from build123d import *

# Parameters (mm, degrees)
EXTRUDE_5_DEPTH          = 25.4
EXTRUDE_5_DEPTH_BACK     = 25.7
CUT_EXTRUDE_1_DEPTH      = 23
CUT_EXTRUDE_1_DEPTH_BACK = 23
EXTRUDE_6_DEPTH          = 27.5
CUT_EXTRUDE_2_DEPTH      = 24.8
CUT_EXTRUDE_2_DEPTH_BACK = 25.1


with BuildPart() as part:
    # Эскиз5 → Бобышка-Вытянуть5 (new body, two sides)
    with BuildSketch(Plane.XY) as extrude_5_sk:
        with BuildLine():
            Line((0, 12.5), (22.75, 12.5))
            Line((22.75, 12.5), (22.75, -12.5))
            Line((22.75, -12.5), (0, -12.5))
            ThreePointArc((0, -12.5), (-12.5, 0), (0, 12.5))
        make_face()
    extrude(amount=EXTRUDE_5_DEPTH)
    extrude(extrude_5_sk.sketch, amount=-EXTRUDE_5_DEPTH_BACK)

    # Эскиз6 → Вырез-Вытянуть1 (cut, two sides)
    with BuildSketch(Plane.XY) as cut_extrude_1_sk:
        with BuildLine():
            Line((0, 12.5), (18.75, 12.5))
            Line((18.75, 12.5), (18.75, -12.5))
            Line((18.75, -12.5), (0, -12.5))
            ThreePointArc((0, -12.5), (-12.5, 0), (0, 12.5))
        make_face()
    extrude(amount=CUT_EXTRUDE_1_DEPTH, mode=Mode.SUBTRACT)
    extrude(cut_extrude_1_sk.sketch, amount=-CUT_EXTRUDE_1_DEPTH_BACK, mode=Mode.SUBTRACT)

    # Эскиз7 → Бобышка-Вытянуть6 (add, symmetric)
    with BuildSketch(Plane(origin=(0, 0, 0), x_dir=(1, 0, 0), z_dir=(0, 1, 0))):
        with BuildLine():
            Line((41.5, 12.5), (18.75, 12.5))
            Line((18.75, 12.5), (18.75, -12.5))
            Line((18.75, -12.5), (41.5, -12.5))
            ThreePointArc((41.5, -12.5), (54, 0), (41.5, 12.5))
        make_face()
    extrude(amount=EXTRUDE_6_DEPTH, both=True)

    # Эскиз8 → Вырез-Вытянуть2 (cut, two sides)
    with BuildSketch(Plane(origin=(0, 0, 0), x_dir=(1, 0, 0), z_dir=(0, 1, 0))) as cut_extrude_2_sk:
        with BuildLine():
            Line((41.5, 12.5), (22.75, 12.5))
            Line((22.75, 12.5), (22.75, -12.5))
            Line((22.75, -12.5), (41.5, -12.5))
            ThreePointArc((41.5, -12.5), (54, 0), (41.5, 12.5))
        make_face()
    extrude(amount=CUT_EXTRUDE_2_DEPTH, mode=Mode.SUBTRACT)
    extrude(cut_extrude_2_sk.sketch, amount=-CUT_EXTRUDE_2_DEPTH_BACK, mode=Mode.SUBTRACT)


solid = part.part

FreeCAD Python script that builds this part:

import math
import FreeCAD as App
import Part
import Sketcher
from FreeCAD import Vector

doc = App.newDocument("Part")
body = doc.addObject("PartDesign::Body", "Body")

sketch1 = doc.addObject("Sketcher::SketchObject", "Sketch")
body.addObject(sketch1)
sketch1.AttachmentSupport = (doc.XY_Plane, [""])
sketch1.MapMode = "FlatFace"
sketch1.addGeometry([
    Part.LineSegment(Vector(22.75, 12.5, 0), Vector(0, 12.5, 0)),
    Part.ArcOfCircle(Part.Circle(Vector(0, 0, 0), Vector(0, 0, 1), 12.5), math.radians(90), math.radians(270)),
    Part.LineSegment(Vector(0, -12.5, 0), Vector(22.75, -12.5, 0)),
    Part.LineSegment(Vector(22.75, -12.5, 0), Vector(22.75, 12.5, 0)),
], False)
sketch1.addConstraint([
    Sketcher.Constraint("Tangent", 0, 2, 1, 1),
    Sketcher.Constraint("Tangent", 1, 2, 2, 1),
    Sketcher.Constraint("Coincident", 2, 2, 3, 1),
    Sketcher.Constraint("Coincident", 3, 2, 0, 1),
    Sketcher.Constraint("Horizontal", 0),
    Sketcher.Constraint("Horizontal", 2),
    Sketcher.Constraint("Vertical", 3),
    Sketcher.Constraint("Coincident", 1, 3, -1, 1),
    Sketcher.Constraint("Radius", 1, 12.5),
    Sketcher.Constraint("DistanceX", 0, 2, 0, 1, 22.75),
])
pad1 = doc.addObject("PartDesign::Pad", "Pad")
body.addObject(pad1)
pad1.Profile = sketch1
pad1.Type = "TwoLengths"
pad1.Length = 25.4
pad1.Length2 = 25.7

sketch2 = doc.addObject("Sketcher::SketchObject", "Sketch001")
body.addObject(sketch2)
sketch2.AttachmentSupport = (doc.XY_Plane, [""])
sketch2.MapMode = "FlatFace"
sketch2.addGeometry([
    Part.LineSegment(Vector(18.75, 12.5, 0), Vector(0, 12.5, 0)),
    Part.ArcOfCircle(Part.Circle(Vector(0, 0, 0), Vector(0, 0, 1), 12.5), math.radians(90), math.radians(270)),
    Part.LineSegment(Vector(0, -12.5, 0), Vector(18.75, -12.5, 0)),
    Part.LineSegment(Vector(18.75, -12.5, 0), Vector(18.75, 12.5, 0)),
], False)
sketch2.addConstraint([
    Sketcher.Constraint("Tangent", 0, 2, 1, 1),
    Sketcher.Constraint("Tangent", 1, 2, 2, 1),
    Sketcher.Constraint("Coincident", 2, 2, 3, 1),
    Sketcher.Constraint("Coincident", 3, 2, 0, 1),
    Sketcher.Constraint("Horizontal", 0),
    Sketcher.Constraint("Horizontal", 2),
    Sketcher.Constraint("Vertical", 3),
    Sketcher.Constraint("Coincident", 1, 3, -1, 1),
    Sketcher.Constraint("Radius", 1, 12.5),
    Sketcher.Constraint("DistanceX", 0, 2, 0, 1, 18.75),
])
pocket1 = doc.addObject("PartDesign::Pocket", "Pocket")
body.addObject(pocket1)
pocket1.Profile = sketch2
pocket1.Type = "TwoLengths"
pocket1.Length = 23
pocket1.Length2 = 23
pocket1.Reversed = True

sketch3 = doc.addObject("Sketcher::SketchObject", "Sketch002")
body.addObject(sketch3)
sketch3.AttachmentSupport = (doc.XZ_Plane, [""])
sketch3.MapMode = "FlatFace"
sketch3.addGeometry([
    Part.LineSegment(Vector(41.5, -12.5, 0), Vector(18.75, -12.5, 0)),
    Part.LineSegment(Vector(18.75, -12.5, 0), Vector(18.75, 12.5, 0)),
    Part.LineSegment(Vector(18.75, 12.5, 0), Vector(41.5, 12.5, 0)),
    Part.ArcOfCircle(Part.Circle(Vector(41.5, 0, 0), Vector(0, 0, 1), 12.5), math.radians(-90), math.radians(90)),
], False)
sketch3.addConstraint([
    Sketcher.Constraint("Coincident", 0, 2, 1, 1),
    Sketcher.Constraint("Coincident", 1, 2, 2, 1),
    Sketcher.Constraint("Tangent", 2, 2, 3, 2),
    Sketcher.Constraint("Tangent", 3, 1, 0, 1),
    Sketcher.Constraint("Horizontal", 0),
    Sketcher.Constraint("Vertical", 1),
    Sketcher.Constraint("Horizontal", 2),
    Sketcher.Constraint("PointOnObject", 3, 3, -1),
    Sketcher.Constraint("Radius", 3, 12.5),
    Sketcher.Constraint("DistanceX", 0, 2, 0, 1, 22.75),
    Sketcher.Constraint("DistanceX", -1, 1, 3, 3, 41.5),
])
pad2 = doc.addObject("PartDesign::Pad", "Pad001")
body.addObject(pad2)
pad2.Profile = sketch3
pad2.Length = 55
pad2.Midplane = True

sketch4 = doc.addObject("Sketcher::SketchObject", "Sketch003")
body.addObject(sketch4)
sketch4.AttachmentSupport = (doc.XZ_Plane, [""])
sketch4.MapMode = "FlatFace"
sketch4.addGeometry([
    Part.LineSegment(Vector(41.5, -12.5, 0), Vector(22.75, -12.5, 0)),
    Part.LineSegment(Vector(22.75, -12.5, 0), Vector(22.75, 12.5, 0)),
    Part.LineSegment(Vector(22.75, 12.5, 0), Vector(41.5, 12.5, 0)),
    Part.ArcOfCircle(Part.Circle(Vector(41.5, 0, 0), Vector(0, 0, 1), 12.5), math.radians(-90), math.radians(90)),
], False)
sketch4.addConstraint([
    Sketcher.Constraint("Coincident", 0, 2, 1, 1),
    Sketcher.Constraint("Coincident", 1, 2, 2, 1),
    Sketcher.Constraint("Tangent", 2, 2, 3, 2),
    Sketcher.Constraint("Tangent", 3, 1, 0, 1),
    Sketcher.Constraint("Horizontal", 0),
    Sketcher.Constraint("Vertical", 1),
    Sketcher.Constraint("Horizontal", 2),
    Sketcher.Constraint("PointOnObject", 3, 3, -1),
    Sketcher.Constraint("Radius", 3, 12.5),
    Sketcher.Constraint("DistanceX", 0, 2, 0, 1, 18.75),
    Sketcher.Constraint("DistanceX", -1, 1, 3, 3, 41.5),
])
pocket2 = doc.addObject("PartDesign::Pocket", "Pocket001")
body.addObject(pocket2)
pocket2.Profile = sketch4
pocket2.Type = "TwoLengths"
pocket2.Length = 24.8
pocket2.Length2 = 25.1

doc.recompute()
